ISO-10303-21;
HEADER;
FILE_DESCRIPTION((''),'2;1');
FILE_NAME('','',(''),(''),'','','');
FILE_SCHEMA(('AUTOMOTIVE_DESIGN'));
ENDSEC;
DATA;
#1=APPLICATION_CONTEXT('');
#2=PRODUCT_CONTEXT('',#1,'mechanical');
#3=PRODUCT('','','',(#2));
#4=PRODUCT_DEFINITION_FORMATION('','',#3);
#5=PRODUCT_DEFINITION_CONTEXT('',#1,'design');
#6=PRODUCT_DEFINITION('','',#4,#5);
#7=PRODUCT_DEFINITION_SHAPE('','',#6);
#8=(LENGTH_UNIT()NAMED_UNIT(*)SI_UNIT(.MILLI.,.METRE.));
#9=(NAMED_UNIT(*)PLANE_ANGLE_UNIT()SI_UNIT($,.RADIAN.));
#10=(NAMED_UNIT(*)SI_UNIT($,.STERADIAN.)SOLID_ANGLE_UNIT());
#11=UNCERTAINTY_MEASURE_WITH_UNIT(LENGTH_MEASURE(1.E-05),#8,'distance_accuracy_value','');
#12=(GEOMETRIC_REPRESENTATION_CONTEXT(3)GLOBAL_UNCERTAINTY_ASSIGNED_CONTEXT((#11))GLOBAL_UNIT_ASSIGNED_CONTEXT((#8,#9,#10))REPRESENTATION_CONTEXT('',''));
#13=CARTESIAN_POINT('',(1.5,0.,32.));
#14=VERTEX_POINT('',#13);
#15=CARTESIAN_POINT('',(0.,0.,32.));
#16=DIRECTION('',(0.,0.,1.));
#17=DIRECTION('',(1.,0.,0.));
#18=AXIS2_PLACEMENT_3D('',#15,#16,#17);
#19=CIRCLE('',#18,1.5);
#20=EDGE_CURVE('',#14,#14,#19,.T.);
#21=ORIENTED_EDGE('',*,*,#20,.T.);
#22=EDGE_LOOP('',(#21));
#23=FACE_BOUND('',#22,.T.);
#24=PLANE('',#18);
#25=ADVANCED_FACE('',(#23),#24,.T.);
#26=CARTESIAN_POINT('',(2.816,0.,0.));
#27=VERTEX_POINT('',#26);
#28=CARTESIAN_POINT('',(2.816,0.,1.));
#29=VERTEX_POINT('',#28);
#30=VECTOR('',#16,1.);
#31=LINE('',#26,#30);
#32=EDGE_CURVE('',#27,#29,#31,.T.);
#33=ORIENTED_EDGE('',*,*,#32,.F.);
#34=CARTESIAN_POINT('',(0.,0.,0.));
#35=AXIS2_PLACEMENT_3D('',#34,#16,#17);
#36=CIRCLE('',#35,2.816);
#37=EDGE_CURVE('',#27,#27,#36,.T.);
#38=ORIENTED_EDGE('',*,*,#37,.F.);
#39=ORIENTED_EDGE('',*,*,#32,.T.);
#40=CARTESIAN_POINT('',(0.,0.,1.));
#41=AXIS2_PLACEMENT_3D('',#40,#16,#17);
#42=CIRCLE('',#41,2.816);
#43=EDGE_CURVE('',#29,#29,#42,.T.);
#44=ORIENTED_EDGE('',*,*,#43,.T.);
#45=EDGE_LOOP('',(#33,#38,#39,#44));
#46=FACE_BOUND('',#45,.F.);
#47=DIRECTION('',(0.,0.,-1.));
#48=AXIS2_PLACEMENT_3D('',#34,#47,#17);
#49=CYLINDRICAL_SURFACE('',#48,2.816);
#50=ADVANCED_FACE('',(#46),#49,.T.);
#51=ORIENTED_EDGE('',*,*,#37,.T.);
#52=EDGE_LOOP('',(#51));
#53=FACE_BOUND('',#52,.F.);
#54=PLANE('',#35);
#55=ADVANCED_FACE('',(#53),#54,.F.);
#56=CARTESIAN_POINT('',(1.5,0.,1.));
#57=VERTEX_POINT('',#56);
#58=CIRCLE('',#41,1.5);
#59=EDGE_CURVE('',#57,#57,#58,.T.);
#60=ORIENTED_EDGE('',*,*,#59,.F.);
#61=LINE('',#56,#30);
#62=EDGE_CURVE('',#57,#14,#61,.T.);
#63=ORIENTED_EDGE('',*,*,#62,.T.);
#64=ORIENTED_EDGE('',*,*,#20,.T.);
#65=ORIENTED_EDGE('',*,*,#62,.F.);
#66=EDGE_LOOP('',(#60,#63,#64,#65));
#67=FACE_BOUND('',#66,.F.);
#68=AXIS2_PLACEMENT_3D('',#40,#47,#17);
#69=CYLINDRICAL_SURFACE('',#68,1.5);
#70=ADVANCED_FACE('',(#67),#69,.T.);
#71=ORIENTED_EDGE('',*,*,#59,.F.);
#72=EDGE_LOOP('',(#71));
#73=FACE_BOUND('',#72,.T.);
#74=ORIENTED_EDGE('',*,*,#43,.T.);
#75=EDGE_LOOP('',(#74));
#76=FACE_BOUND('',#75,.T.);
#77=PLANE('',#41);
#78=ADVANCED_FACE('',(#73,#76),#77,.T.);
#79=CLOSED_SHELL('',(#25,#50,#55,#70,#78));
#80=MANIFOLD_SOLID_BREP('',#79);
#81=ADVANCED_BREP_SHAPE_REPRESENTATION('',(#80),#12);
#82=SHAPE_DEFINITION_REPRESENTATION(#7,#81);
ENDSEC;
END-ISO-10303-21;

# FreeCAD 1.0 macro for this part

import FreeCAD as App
import Part
import Sketcher

V = App.Vector

doc = App.newDocument("Part")
body = doc.addObject("PartDesign::Body", "Body")

# Sketch on XY plane
sketch1 = body.newObject("Sketcher::SketchObject", "Sketch")
sketch1.AttachmentSupport = (doc.getObject("XY_Plane"), [""])
sketch1.MapMode = "FlatFace"
sketch1.addGeometry(Part.Circle(V(0, 0, 0), V(0, 0, 1), 2.816), False)
sketch1.addConstraint(Sketcher.Constraint("Coincident", 0, 3, -1, 1))
sketch1.addConstraint(Sketcher.Constraint("Diameter", 0, 5.632))
pad1 = body.newObject("PartDesign::Pad", "Pad")
pad1.Profile = sketch1
pad1.Length = 1

# Sketch on XY plane
sketch2 = body.newObject("Sketcher::SketchObject", "Sketch001")
sketch2.AttachmentSupport = (doc.getObject("XY_Plane"), [""])
sketch2.MapMode = "FlatFace"
sketch2.AttachmentOffset = App.Placement(V(0, 0, 1), App.Rotation())
sketch2.addGeometry(Part.Circle(V(0, 0, 0), V(0, 0, 1), 1.5), False)
sketch2.addConstraint(Sketcher.Constraint("Coincident", 0, 3, -1, 1))
sketch2.addConstraint(Sketcher.Constraint("Diameter", 0, 3.0))
pad2 = body.newObject("PartDesign::Pad", "Pad001")
pad2.Profile = sketch2
pad2.Length = 31

doc.recompute()
